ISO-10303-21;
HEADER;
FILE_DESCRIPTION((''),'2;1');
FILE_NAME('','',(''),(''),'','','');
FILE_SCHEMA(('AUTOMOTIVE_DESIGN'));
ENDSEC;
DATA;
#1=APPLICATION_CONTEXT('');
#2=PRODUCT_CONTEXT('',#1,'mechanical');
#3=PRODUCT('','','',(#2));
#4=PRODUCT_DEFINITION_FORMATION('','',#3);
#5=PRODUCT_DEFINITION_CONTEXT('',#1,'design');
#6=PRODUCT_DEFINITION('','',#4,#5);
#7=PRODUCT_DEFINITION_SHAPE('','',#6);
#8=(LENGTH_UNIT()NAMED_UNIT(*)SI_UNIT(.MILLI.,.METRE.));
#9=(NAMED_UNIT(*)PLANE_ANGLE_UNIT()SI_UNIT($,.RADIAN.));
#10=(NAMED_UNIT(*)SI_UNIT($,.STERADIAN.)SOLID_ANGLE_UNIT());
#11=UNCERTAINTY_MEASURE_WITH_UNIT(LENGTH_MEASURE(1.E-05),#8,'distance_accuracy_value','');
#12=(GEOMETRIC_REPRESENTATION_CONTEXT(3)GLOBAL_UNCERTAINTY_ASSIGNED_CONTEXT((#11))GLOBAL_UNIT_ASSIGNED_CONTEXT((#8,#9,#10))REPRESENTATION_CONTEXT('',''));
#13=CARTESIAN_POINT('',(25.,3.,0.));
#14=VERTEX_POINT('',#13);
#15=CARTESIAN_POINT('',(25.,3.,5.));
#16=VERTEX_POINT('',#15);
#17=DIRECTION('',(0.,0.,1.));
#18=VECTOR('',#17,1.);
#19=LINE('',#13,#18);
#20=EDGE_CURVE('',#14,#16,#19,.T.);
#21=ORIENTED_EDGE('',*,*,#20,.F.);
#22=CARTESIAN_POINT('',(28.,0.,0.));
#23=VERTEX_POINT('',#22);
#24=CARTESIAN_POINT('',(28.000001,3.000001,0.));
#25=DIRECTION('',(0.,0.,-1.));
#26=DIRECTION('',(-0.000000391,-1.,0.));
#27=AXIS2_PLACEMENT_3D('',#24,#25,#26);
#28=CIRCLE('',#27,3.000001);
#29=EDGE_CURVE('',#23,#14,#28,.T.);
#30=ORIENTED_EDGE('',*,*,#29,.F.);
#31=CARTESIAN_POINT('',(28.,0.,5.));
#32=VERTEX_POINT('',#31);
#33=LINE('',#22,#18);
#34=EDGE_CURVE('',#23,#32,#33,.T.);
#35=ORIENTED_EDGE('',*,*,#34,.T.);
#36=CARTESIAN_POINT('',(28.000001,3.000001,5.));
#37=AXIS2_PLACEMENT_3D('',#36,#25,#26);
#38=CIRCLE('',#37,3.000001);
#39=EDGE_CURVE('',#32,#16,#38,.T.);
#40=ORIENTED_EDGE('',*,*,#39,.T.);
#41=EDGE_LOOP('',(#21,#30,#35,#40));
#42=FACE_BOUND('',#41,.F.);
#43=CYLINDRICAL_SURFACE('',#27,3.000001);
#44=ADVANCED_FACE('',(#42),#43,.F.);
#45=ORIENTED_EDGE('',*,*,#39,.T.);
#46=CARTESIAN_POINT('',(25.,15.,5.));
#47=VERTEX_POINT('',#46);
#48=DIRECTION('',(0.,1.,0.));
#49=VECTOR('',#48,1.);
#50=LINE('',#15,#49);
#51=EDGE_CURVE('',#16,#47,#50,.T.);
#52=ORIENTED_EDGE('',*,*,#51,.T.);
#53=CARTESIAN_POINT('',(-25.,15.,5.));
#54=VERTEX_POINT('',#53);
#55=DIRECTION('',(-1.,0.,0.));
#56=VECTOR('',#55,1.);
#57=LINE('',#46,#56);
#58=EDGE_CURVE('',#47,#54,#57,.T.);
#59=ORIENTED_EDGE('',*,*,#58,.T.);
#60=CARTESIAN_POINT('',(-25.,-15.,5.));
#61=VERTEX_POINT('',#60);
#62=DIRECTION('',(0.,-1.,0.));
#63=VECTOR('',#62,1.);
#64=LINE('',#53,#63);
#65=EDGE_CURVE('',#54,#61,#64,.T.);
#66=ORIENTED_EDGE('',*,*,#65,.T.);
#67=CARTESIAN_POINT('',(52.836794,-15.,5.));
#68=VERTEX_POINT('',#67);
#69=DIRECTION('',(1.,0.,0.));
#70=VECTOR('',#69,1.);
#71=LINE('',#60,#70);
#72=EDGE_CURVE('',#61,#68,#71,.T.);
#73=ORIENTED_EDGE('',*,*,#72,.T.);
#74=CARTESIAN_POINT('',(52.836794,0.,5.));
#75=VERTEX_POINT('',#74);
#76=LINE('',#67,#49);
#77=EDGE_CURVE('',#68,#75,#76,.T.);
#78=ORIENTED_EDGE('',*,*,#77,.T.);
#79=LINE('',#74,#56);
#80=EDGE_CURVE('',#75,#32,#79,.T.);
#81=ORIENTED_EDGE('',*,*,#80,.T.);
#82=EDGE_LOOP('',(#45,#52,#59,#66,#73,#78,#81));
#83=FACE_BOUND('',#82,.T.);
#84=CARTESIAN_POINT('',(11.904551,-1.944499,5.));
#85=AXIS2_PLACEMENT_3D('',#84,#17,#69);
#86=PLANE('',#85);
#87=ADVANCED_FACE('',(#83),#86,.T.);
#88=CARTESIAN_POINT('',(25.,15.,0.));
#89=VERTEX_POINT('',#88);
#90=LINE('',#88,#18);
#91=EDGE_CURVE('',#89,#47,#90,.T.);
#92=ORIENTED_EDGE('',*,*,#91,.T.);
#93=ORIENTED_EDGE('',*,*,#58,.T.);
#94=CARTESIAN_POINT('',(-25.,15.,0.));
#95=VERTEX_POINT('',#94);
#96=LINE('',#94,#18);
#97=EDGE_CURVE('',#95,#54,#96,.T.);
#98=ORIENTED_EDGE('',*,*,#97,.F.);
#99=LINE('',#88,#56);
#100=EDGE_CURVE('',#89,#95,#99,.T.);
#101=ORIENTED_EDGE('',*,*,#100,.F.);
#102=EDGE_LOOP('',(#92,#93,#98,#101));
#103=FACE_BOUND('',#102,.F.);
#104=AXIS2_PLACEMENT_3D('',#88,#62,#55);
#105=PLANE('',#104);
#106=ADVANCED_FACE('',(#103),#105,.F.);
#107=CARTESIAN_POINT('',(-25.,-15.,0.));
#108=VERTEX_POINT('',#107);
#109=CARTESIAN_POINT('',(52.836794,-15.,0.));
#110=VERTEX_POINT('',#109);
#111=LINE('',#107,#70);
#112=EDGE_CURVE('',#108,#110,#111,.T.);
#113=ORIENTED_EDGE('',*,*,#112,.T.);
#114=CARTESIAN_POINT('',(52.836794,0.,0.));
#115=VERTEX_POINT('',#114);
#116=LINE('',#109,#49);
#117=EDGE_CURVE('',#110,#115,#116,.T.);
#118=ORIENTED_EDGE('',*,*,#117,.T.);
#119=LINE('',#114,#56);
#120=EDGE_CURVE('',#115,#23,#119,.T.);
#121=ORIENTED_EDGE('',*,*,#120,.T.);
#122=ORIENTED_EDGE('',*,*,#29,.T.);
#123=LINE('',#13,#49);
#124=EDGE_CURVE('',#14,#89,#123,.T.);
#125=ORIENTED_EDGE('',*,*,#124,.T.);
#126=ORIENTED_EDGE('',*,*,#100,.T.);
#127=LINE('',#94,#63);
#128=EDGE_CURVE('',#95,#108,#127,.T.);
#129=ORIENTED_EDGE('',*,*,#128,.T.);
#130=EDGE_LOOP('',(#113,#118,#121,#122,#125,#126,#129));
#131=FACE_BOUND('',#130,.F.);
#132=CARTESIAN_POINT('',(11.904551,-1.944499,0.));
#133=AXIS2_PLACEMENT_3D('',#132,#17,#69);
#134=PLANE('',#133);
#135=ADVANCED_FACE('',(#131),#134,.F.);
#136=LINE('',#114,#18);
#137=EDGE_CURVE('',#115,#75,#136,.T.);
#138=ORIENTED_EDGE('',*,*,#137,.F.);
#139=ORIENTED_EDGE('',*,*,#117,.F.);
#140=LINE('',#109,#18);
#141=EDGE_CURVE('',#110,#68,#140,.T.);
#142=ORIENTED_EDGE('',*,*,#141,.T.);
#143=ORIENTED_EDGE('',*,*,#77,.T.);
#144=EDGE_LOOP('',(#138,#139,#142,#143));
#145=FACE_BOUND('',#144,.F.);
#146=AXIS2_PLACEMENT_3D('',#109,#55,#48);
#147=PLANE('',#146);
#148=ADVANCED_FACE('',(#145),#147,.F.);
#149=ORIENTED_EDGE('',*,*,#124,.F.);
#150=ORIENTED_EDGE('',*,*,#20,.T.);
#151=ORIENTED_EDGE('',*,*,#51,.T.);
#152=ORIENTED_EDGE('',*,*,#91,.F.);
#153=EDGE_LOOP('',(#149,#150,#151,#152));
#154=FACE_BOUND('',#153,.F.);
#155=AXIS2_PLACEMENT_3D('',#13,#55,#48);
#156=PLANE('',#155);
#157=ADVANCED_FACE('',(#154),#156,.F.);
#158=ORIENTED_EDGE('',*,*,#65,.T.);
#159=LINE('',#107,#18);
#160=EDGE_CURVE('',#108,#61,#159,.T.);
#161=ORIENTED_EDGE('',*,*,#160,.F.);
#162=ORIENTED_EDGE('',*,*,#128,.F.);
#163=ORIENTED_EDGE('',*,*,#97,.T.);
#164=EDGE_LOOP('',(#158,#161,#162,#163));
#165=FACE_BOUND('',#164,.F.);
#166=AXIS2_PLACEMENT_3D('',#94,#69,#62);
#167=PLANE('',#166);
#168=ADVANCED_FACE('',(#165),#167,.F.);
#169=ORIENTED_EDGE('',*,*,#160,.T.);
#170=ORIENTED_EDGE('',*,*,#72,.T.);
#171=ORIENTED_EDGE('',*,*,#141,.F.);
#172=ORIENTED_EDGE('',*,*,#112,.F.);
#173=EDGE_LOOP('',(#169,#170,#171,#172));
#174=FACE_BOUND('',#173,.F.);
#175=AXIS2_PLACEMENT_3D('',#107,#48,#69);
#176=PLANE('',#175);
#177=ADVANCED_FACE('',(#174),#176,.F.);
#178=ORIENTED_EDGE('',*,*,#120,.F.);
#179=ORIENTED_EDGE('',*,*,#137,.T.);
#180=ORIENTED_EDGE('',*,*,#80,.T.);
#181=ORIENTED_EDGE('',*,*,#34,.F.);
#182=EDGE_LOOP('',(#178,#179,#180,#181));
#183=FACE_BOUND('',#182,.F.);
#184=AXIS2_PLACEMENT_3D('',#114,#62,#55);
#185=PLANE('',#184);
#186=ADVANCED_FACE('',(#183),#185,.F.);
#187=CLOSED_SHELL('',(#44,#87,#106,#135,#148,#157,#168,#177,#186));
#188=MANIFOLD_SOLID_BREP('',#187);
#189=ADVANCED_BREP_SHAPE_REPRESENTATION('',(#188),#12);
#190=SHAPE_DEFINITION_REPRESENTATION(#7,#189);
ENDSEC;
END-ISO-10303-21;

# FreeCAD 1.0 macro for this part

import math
import FreeCAD as App
import Part
import Sketcher

V = App.Vector
Q = App.Units.Quantity

doc = App.newDocument("Part")
body = doc.addObject("PartDesign::Body", "Body")

# Sketch on XY plane
sketch1 = body.newObject("Sketcher::SketchObject", "Sketch")
sketch1.AttachmentSupport = (doc.getObject("XY_Plane"), [""])
sketch1.MapMode = "FlatFace"
sketch1.addGeometry(Part.LineSegment(V(-25, 15, 0), V(-25, -15, 0)), False)
sketch1.addGeometry(Part.LineSegment(V(-25, -15, 0), V(52.8, -15, 0)), False)
sketch1.addGeometry(Part.LineSegment(V(52.8, -15, 0), V(52.8, 0, 0)), False)
sketch1.addGeometry(Part.LineSegment(V(52.8, 0, 0), V(28, 0, 0)), False)
sketch1.addGeometry(Part.ArcOfCircle(Part.Circle(V(28, 3, 0), V(0, 0, 1), 3), math.radians(-180), math.radians(-90)), False)
sketch1.addGeometry(Part.LineSegment(V(25, 3, 0), V(25, 15, 0)), False)
sketch1.addGeometry(Part.LineSegment(V(25, 15, 0), V(-25, 15, 0)), False)
sketch1.addConstraint(Sketcher.Constraint("Coincident", 0, 2, 1, 1))
sketch1.addConstraint(Sketcher.Constraint("Coincident", 1, 2, 2, 1))
sketch1.addConstraint(Sketcher.Constraint("Coincident", 2, 2, 3, 1))
sketch1.addConstraint(Sketcher.Constraint("Tangent", 3, 2, 4, 2))
sketch1.addConstraint(Sketcher.Constraint("Tangent", 4, 1, 5, 1))
sketch1.addConstraint(Sketcher.Constraint("Coincident", 5, 2, 6, 1))
sketch1.addConstraint(Sketcher.Constraint("Coincident", 6, 2, 0, 1))
sketch1.addConstraint(Sketcher.Constraint("Vertical", 0))
sketch1.addConstraint(Sketcher.Constraint("Horizontal", 1))
sketch1.addConstraint(Sketcher.Constraint("Vertical", 2))
sketch1.addConstraint(Sketcher.Constraint("Horizontal", 3))
sketch1.addConstraint(Sketcher.Constraint("Vertical", 5))
sketch1.addConstraint(Sketcher.Constraint("Horizontal", 6))
sketch1.addConstraint(Sketcher.Constraint("Symmetric", 0, 2, 5, 2, -1, 1))
sketch1.addConstraint(Sketcher.Constraint("PointOnObject", 2, 2, -1))
sketch1.addConstraint(Sketcher.Constraint("Radius", 4, Q("3.000001 mm")))
sketch1.addConstraint(Sketcher.Constraint("DistanceX", 6, 2, 6, 1, Q("50 mm")))
sketch1.addConstraint(Sketcher.Constraint("DistanceY", 0, 2, 0, 1, Q("30 mm")))
sketch1.addConstraint(Sketcher.Constraint("DistanceX", 1, 1, 1, 2, Q("77.836794 mm")))
pad1 = body.newObject("PartDesign::Pad", "Pad")
pad1.Profile = sketch1
pad1.Length = 5

doc.recompute()
